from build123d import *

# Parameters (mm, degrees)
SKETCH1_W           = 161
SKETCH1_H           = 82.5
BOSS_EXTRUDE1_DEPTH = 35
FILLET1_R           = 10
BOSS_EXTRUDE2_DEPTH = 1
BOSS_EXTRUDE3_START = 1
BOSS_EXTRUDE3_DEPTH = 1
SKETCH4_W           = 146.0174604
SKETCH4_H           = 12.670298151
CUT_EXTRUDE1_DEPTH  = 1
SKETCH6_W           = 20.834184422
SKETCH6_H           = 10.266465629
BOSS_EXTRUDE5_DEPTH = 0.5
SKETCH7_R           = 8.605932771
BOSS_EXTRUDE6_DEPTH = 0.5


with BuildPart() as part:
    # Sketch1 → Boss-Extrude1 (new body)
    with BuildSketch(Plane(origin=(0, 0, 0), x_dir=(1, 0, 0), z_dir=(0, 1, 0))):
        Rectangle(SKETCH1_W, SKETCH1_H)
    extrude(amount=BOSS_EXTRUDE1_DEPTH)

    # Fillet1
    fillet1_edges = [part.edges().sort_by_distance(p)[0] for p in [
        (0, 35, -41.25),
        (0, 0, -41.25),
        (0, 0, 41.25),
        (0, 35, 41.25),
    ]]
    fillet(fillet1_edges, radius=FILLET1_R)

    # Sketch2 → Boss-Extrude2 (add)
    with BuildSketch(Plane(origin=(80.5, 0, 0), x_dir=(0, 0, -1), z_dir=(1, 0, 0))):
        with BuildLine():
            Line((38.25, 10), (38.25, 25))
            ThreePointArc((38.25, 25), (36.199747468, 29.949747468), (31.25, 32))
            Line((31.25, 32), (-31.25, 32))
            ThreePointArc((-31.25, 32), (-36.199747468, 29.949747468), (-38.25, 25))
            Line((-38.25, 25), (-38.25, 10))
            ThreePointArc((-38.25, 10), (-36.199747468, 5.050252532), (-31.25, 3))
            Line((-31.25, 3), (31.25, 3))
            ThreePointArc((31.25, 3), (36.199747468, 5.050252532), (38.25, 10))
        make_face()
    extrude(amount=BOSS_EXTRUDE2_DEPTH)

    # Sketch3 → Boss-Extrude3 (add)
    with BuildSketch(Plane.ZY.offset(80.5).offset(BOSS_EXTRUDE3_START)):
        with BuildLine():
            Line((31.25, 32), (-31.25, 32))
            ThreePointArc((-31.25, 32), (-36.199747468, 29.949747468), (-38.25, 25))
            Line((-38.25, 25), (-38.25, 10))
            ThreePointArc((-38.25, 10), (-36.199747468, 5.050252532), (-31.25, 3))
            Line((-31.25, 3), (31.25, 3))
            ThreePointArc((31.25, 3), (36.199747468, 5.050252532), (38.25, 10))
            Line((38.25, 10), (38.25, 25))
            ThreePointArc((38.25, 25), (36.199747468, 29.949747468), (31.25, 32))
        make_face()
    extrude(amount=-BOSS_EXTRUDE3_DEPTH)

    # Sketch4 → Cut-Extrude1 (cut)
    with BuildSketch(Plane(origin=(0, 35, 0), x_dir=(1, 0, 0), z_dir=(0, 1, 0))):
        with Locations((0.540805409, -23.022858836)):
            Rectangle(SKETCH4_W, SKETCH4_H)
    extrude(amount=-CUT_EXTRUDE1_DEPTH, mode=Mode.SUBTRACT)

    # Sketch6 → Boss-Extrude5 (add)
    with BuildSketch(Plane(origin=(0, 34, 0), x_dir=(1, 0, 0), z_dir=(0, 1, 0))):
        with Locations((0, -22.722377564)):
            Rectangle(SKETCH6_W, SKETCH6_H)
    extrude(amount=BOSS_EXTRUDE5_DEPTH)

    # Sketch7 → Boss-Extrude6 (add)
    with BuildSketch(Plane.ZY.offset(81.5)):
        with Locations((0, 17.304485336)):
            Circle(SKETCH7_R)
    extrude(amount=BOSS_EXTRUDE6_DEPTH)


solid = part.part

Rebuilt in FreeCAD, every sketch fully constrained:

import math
import FreeCAD as App
import Part
import Sketcher
from FreeCAD import Vector


def edges_at(feature, points):
    """Names of the edges that pass closest to the given points."""
    edges = feature.Shape.Edges
    near = lambda p: min(range(len(edges)), key=lambda i: edges[i].distToShape(Part.Vertex(*p))[0])
    return sorted({f"Edge{near(p) + 1}" for p in points})


def add_polygon(sketch, points):
    """Adds a closed chain of lines whose ends are joined by coincident constraints."""
    first, n = sketch.GeometryCount, len(points)
    for a, b in zip(points, points[1:] + points[:1]):
        sketch.addGeometry(Part.LineSegment(App.Vector(*a, 0), App.Vector(*b, 0)), False)
    for i in range(n):
        sketch.addConstraint(Sketcher.Constraint("Coincident", first + i, 2, first + (i + 1) % n, 1))

doc = App.newDocument("Part")
body = doc.addObject("PartDesign::Body", "Body")

# Sketch on XZ plane
sketch1 = body.newObject("Sketcher::SketchObject", "Sketch")
sketch1.AttachmentSupport = (doc.getObject("XZ_Plane"), [""])
sketch1.MapMode = "FlatFace"
add_polygon(sketch1, [(-80.5, -41.25), (-80.5, 41.25), (80.5, 41.25), (80.5, -41.25)])  # lines 0-3
sketch1.addConstraint(Sketcher.Constraint("Vertical", 0))
sketch1.addConstraint(Sketcher.Constraint("Horizontal", 1))
sketch1.addConstraint(Sketcher.Constraint("Vertical", 2))
sketch1.addConstraint(Sketcher.Constraint("Horizontal", 3))
sketch1.addConstraint(Sketcher.Constraint("Symmetric", 0, 2, 2, 2, -1, 1))
sketch1.addConstraint(Sketcher.Constraint("DistanceX", 1, 1, 1, 2, 161.0))
sketch1.addConstraint(Sketcher.Constraint("DistanceY", 0, 1, 0, 2, 82.5))
pad1 = body.newObject("PartDesign::Pad", "Pad")
pad1.Profile = sketch1
pad1.Length = 35
pad1.Reversed = True
doc.recompute()

fillet = body.newObject("PartDesign::Fillet", "Fillet")
fillet.Base = (pad1, edges_at(pad1, [
    (0, 35, -41.25),
    (0, 0, -41.25),
    (0, 0, 41.25),
    (0, 35, 41.25),
]))
fillet.Radius = 10

# Sketch on YZ plane
sketch2 = body.newObject("Sketcher::SketchObject", "Sketch001")
sketch2.AttachmentSupport = (doc.getObject("YZ_Plane"), [""])
sketch2.MapMode = "FlatFace"
sketch2.AttachmentOffset = App.Placement(Vector(0, 0, 80.5), App.Rotation())
sketch2.addGeometry(Part.LineSegment(Vector(10, -38.25, 0), Vector(25, -38.25, 0)), False)
sketch2.addGeometry(Part.ArcOfCircle(Part.Circle(Vector(25, -31.25, 0), Vector(0, 0, 1), 7), math.radians(-90), math.radians(0)), False)
sketch2.addGeometry(Part.LineSegment(Vector(32, -31.25, 0), Vector(32, 31.25, 0)), False)
sketch2.addGeometry(Part.ArcOfCircle(Part.Circle(Vector(25, 31.25, 0), Vector(0, 0, 1), 7), math.radians(0), math.radians(90)), False)
sketch2.addGeometry(Part.LineSegment(Vector(25, 38.25, 0), Vector(10, 38.25, 0)), False)
sketch2.addGeometry(Part.ArcOfCircle(Part.Circle(Vector(10, 31.25, 0), Vector(0, 0, 1), 7), math.radians(90), math.radians(180)), False)
sketch2.addGeometry(Part.LineSegment(Vector(3, 31.25, 0), Vector(3, -31.25, 0)), False)
sketch2.addGeometry(Part.ArcOfCircle(Part.Circle(Vector(10, -31.25, 0), Vector(0, 0, 1), 7), math.radians(-180), math.radians(-90)), False)
sketch2.addConstraint(Sketcher.Constraint("Tangent", 0, 2, 1, 1))
sketch2.addConstraint(Sketcher.Constraint("Tangent", 1, 2, 2, 1))
sketch2.addConstraint(Sketcher.Constraint("Tangent", 2, 2, 3, 1))
sketch2.addConstraint(Sketcher.Constraint("Tangent", 3, 2, 4, 1))
sketch2.addConstraint(Sketcher.Constraint("Tangent", 4, 2, 5, 1))
sketch2.addConstraint(Sketcher.Constraint("Tangent", 5, 2, 6, 1))
sketch2.addConstraint(Sketcher.Constraint("Tangent", 6, 2, 7, 1))
sketch2.addConstraint(Sketcher.Constraint("Tangent", 7, 2, 0, 1))
sketch2.addConstraint(Sketcher.Constraint("Horizontal", 0))
sketch2.addConstraint(Sketcher.Constraint("Vertical", 2))
sketch2.addConstraint(Sketcher.Constraint("Horizontal", 4))
sketch2.addConstraint(Sketcher.Constraint("Vertical", 6))
sketch2.addConstraint(Sketcher.Constraint("Equal", 1, 3))
sketch2.addConstraint(Sketcher.Constraint("Equal", 3, 5))
sketch2.addConstraint(Sketcher.Constraint("Equal", 5, 7))
sketch2.addConstraint(Sketcher.Constraint("Radius", 1, 7.0))
sketch2.addConstraint(Sketcher.Constraint("DistanceX", 0, 1, 0, 2, 15.0))
sketch2.addConstraint(Sketcher.Constraint("DistanceY", 2, 1, 2, 2, 62.5))
sketch2.addConstraint(Sketcher.Constraint("DistanceX", -1, 1, 1, 3, 25.0))
sketch2.addConstraint(Sketcher.Constraint("DistanceY", 1, 3, -1, 1, 31.25))
pad2 = body.newObject("PartDesign::Pad", "Pad001")
pad2.Profile = sketch2
pad2.Length = 1

# Sketch on YZ plane
sketch3 = body.newObject("Sketcher::SketchObject", "Sketch002")
sketch3.AttachmentSupport = (doc.getObject("YZ_Plane"), [""])
sketch3.MapMode = "FlatFace"
sketch3.AttachmentOffset = App.Placement(Vector(0, 0, -81.5), App.Rotation())
sketch3.addGeometry(Part.LineSegment(Vector(32, 31.25, 0), Vector(32, -31.25, 0)), False)
sketch3.addGeometry(Part.ArcOfCircle(Part.Circle(Vector(25, -31.25, 0), Vector(0, 0, 1), 7), math.radians(-90), math.radians(0)), False)
sketch3.addGeometry(Part.LineSegment(Vector(25, -38.25, 0), Vector(10, -38.25, 0)), False)
sketch3.addGeometry(Part.ArcOfCircle(Part.Circle(Vector(10, -31.25, 0), Vector(0, 0, 1), 7), math.radians(-180), math.radians(-90)), False)
sketch3.addGeometry(Part.LineSegment(Vector(3, -31.25, 0), Vector(3, 31.25, 0)), False)
sketch3.addGeometry(Part.ArcOfCircle(Part.Circle(Vector(10, 31.25, 0), Vector(0, 0, 1), 7), math.radians(90), math.radians(180)), False)
sketch3.addGeometry(Part.LineSegment(Vector(10, 38.25, 0), Vector(25, 38.25, 0)), False)
sketch3.addGeometry(Part.ArcOfCircle(Part.Circle(Vector(25, 31.25, 0), Vector(0, 0, 1), 7), math.radians(0), math.radians(90)), False)
sketch3.addConstraint(Sketcher.Constraint("Tangent", 0, 2, 1, 2))
sketch3.addConstraint(Sketcher.Constraint("Tangent", 1, 1, 2, 1))
sketch3.addConstraint(Sketcher.Constraint("Tangent", 2, 2, 3, 2))
sketch3.addConstraint(Sketcher.Constraint("Tangent", 3, 1, 4, 1))
sketch3.addConstraint(Sketcher.Constraint("Tangent", 4, 2, 5, 2))
sketch3.addConstraint(Sketcher.Constraint("Tangent", 5, 1, 6, 1))
sketch3.addConstraint(Sketcher.Constraint("Tangent", 6, 2, 7, 2))
sketch3.addConstraint(Sketcher.Constraint("Tangent", 7, 1, 0, 1))
sketch3.addConstraint(Sketcher.Constraint("Vertical", 0))
sketch3.addConstraint(Sketcher.Constraint("Horizontal", 2))
sketch3.addConstraint(Sketcher.Constraint("Vertical", 4))
sketch3.addConstraint(Sketcher.Constraint("Horizontal", 6))
sketch3.addConstraint(Sketcher.Constraint("Equal", 1, 3))
sketch3.addConstraint(Sketcher.Constraint("Equal", 3, 5))
sketch3.addConstraint(Sketcher.Constraint("Equal", 5, 7))
sketch3.addConstraint(Sketcher.Constraint("Radius", 1, 7.0))
sketch3.addConstraint(Sketcher.Constraint("DistanceX", 2, 2, 2, 1, 15.0))
sketch3.addConstraint(Sketcher.Constraint("DistanceY", 0, 2, 0, 1, 62.5))
sketch3.addConstraint(Sketcher.Constraint("DistanceX", -1, 1, 1, 3, 25.0))
sketch3.addConstraint(Sketcher.Constraint("DistanceY", 1, 3, -1, 1, 31.25))
pad3 = body.newObject("PartDesign::Pad", "Pad002")
pad3.Profile = sketch3
pad3.Length = 1

# Sketch on XZ plane
sketch4 = body.newObject("Sketcher::SketchObject", "Sketch003")
sketch4.AttachmentSupport = (doc.getObject("XZ_Plane"), [""])
sketch4.MapMode = "FlatFace"
sketch4.AttachmentOffset = App.Placement(Vector(0, 0, -35), App.Rotation())
add_polygon(sketch4, [(-72.467925, 16.68771), (-72.467925, 29.358008), (73.549536, 29.358008), (73.549536, 16.68771)])  # lines 0-3
sketch4.addConstraint(Sketcher.Constraint("Vertical", 0))
sketch4.addConstraint(Sketcher.Constraint("Horizontal", 1))
sketch4.addConstraint(Sketcher.Constraint("Vertical", 2))
sketch4.addConstraint(Sketcher.Constraint("Horizontal", 3))
sketch4.addConstraint(Sketcher.Constraint("DistanceY", 0, 1, 0, 2, 12.670298))
sketch4.addConstraint(Sketcher.Constraint("DistanceX", 1, 1, 1, 2, 146.01746))
sketch4.addConstraint(Sketcher.Constraint("DistanceY", -1, 1, 2, 2, 16.68771))
sketch4.addConstraint(Sketcher.Constraint("DistanceX", 0, 2, -1, 1, 72.467925))
pocket1 = body.newObject("PartDesign::Pocket", "Pocket")
pocket1.Profile = sketch4
pocket1.Length = 1
pocket1.Reversed = True

# Sketch on XZ plane
sketch5 = body.newObject("Sketcher::SketchObject", "Sketch004")
sketch5.AttachmentSupport = (doc.getObject("XZ_Plane"), [""])
sketch5.MapMode = "FlatFace"
sketch5.AttachmentOffset = App.Placement(Vector(0, 0, -34), App.Rotation())
add_polygon(sketch5, [(-10.417092, 17.589145), (-10.417092, 27.85561), (10.417092, 27.85561), (10.417092, 17.589145)])  # lines 0-3
sketch5.addConstraint(Sketcher.Constraint("Vertical", 0))
sketch5.addConstraint(Sketcher.Constraint("Horizontal", 1))
sketch5.addConstraint(Sketcher.Constraint("Vertical", 2))
sketch5.addConstraint(Sketcher.Constraint("Horizontal", 3))
sketch5.addConstraint(Sketcher.Constraint("DistanceX", 1, 1, 1, 2, 20.834184))
sketch5.addConstraint(Sketcher.Constraint("DistanceY", 0, 1, 0, 2, 10.266466))
sketch5.addConstraint(Sketcher.Constraint("DistanceY", -1, 1, 0, 2, 27.85561))
sketch5.addConstraint(Sketcher.Constraint("DistanceX", 0, 2, -1, 1, 10.417092))
pad4 = body.newObject("PartDesign::Pad", "Pad003")
pad4.Profile = sketch5
pad4.Length = 0.5
pad4.Reversed = True

# Sketch on YZ plane
sketch6 = body.newObject("Sketcher::SketchObject", "Sketch005")
sketch6.AttachmentSupport = (doc.getObject("YZ_Plane"), [""])
sketch6.MapMode = "FlatFace"
sketch6.AttachmentOffset = App.Placement(Vector(0, 0, -81.5), App.Rotation())
sketch6.addGeometry(Part.Circle(Vector(17.304485, 0, 0), Vector(0, 0, 1), 8.605933), False)
sketch6.addConstraint(Sketcher.Constraint("PointOnObject", 0, 3, -1))
sketch6.addConstraint(Sketcher.Constraint("Diameter", 0, 17.211866))
sketch6.addConstraint(Sketcher.Constraint("DistanceX", -1, 1, 0, 3, 17.304485))
pad5 = body.newObject("PartDesign::Pad", "Pad004")
pad5.Profile = sketch6
pad5.Length = 0.5
pad5.Reversed = True

doc.recompute()
